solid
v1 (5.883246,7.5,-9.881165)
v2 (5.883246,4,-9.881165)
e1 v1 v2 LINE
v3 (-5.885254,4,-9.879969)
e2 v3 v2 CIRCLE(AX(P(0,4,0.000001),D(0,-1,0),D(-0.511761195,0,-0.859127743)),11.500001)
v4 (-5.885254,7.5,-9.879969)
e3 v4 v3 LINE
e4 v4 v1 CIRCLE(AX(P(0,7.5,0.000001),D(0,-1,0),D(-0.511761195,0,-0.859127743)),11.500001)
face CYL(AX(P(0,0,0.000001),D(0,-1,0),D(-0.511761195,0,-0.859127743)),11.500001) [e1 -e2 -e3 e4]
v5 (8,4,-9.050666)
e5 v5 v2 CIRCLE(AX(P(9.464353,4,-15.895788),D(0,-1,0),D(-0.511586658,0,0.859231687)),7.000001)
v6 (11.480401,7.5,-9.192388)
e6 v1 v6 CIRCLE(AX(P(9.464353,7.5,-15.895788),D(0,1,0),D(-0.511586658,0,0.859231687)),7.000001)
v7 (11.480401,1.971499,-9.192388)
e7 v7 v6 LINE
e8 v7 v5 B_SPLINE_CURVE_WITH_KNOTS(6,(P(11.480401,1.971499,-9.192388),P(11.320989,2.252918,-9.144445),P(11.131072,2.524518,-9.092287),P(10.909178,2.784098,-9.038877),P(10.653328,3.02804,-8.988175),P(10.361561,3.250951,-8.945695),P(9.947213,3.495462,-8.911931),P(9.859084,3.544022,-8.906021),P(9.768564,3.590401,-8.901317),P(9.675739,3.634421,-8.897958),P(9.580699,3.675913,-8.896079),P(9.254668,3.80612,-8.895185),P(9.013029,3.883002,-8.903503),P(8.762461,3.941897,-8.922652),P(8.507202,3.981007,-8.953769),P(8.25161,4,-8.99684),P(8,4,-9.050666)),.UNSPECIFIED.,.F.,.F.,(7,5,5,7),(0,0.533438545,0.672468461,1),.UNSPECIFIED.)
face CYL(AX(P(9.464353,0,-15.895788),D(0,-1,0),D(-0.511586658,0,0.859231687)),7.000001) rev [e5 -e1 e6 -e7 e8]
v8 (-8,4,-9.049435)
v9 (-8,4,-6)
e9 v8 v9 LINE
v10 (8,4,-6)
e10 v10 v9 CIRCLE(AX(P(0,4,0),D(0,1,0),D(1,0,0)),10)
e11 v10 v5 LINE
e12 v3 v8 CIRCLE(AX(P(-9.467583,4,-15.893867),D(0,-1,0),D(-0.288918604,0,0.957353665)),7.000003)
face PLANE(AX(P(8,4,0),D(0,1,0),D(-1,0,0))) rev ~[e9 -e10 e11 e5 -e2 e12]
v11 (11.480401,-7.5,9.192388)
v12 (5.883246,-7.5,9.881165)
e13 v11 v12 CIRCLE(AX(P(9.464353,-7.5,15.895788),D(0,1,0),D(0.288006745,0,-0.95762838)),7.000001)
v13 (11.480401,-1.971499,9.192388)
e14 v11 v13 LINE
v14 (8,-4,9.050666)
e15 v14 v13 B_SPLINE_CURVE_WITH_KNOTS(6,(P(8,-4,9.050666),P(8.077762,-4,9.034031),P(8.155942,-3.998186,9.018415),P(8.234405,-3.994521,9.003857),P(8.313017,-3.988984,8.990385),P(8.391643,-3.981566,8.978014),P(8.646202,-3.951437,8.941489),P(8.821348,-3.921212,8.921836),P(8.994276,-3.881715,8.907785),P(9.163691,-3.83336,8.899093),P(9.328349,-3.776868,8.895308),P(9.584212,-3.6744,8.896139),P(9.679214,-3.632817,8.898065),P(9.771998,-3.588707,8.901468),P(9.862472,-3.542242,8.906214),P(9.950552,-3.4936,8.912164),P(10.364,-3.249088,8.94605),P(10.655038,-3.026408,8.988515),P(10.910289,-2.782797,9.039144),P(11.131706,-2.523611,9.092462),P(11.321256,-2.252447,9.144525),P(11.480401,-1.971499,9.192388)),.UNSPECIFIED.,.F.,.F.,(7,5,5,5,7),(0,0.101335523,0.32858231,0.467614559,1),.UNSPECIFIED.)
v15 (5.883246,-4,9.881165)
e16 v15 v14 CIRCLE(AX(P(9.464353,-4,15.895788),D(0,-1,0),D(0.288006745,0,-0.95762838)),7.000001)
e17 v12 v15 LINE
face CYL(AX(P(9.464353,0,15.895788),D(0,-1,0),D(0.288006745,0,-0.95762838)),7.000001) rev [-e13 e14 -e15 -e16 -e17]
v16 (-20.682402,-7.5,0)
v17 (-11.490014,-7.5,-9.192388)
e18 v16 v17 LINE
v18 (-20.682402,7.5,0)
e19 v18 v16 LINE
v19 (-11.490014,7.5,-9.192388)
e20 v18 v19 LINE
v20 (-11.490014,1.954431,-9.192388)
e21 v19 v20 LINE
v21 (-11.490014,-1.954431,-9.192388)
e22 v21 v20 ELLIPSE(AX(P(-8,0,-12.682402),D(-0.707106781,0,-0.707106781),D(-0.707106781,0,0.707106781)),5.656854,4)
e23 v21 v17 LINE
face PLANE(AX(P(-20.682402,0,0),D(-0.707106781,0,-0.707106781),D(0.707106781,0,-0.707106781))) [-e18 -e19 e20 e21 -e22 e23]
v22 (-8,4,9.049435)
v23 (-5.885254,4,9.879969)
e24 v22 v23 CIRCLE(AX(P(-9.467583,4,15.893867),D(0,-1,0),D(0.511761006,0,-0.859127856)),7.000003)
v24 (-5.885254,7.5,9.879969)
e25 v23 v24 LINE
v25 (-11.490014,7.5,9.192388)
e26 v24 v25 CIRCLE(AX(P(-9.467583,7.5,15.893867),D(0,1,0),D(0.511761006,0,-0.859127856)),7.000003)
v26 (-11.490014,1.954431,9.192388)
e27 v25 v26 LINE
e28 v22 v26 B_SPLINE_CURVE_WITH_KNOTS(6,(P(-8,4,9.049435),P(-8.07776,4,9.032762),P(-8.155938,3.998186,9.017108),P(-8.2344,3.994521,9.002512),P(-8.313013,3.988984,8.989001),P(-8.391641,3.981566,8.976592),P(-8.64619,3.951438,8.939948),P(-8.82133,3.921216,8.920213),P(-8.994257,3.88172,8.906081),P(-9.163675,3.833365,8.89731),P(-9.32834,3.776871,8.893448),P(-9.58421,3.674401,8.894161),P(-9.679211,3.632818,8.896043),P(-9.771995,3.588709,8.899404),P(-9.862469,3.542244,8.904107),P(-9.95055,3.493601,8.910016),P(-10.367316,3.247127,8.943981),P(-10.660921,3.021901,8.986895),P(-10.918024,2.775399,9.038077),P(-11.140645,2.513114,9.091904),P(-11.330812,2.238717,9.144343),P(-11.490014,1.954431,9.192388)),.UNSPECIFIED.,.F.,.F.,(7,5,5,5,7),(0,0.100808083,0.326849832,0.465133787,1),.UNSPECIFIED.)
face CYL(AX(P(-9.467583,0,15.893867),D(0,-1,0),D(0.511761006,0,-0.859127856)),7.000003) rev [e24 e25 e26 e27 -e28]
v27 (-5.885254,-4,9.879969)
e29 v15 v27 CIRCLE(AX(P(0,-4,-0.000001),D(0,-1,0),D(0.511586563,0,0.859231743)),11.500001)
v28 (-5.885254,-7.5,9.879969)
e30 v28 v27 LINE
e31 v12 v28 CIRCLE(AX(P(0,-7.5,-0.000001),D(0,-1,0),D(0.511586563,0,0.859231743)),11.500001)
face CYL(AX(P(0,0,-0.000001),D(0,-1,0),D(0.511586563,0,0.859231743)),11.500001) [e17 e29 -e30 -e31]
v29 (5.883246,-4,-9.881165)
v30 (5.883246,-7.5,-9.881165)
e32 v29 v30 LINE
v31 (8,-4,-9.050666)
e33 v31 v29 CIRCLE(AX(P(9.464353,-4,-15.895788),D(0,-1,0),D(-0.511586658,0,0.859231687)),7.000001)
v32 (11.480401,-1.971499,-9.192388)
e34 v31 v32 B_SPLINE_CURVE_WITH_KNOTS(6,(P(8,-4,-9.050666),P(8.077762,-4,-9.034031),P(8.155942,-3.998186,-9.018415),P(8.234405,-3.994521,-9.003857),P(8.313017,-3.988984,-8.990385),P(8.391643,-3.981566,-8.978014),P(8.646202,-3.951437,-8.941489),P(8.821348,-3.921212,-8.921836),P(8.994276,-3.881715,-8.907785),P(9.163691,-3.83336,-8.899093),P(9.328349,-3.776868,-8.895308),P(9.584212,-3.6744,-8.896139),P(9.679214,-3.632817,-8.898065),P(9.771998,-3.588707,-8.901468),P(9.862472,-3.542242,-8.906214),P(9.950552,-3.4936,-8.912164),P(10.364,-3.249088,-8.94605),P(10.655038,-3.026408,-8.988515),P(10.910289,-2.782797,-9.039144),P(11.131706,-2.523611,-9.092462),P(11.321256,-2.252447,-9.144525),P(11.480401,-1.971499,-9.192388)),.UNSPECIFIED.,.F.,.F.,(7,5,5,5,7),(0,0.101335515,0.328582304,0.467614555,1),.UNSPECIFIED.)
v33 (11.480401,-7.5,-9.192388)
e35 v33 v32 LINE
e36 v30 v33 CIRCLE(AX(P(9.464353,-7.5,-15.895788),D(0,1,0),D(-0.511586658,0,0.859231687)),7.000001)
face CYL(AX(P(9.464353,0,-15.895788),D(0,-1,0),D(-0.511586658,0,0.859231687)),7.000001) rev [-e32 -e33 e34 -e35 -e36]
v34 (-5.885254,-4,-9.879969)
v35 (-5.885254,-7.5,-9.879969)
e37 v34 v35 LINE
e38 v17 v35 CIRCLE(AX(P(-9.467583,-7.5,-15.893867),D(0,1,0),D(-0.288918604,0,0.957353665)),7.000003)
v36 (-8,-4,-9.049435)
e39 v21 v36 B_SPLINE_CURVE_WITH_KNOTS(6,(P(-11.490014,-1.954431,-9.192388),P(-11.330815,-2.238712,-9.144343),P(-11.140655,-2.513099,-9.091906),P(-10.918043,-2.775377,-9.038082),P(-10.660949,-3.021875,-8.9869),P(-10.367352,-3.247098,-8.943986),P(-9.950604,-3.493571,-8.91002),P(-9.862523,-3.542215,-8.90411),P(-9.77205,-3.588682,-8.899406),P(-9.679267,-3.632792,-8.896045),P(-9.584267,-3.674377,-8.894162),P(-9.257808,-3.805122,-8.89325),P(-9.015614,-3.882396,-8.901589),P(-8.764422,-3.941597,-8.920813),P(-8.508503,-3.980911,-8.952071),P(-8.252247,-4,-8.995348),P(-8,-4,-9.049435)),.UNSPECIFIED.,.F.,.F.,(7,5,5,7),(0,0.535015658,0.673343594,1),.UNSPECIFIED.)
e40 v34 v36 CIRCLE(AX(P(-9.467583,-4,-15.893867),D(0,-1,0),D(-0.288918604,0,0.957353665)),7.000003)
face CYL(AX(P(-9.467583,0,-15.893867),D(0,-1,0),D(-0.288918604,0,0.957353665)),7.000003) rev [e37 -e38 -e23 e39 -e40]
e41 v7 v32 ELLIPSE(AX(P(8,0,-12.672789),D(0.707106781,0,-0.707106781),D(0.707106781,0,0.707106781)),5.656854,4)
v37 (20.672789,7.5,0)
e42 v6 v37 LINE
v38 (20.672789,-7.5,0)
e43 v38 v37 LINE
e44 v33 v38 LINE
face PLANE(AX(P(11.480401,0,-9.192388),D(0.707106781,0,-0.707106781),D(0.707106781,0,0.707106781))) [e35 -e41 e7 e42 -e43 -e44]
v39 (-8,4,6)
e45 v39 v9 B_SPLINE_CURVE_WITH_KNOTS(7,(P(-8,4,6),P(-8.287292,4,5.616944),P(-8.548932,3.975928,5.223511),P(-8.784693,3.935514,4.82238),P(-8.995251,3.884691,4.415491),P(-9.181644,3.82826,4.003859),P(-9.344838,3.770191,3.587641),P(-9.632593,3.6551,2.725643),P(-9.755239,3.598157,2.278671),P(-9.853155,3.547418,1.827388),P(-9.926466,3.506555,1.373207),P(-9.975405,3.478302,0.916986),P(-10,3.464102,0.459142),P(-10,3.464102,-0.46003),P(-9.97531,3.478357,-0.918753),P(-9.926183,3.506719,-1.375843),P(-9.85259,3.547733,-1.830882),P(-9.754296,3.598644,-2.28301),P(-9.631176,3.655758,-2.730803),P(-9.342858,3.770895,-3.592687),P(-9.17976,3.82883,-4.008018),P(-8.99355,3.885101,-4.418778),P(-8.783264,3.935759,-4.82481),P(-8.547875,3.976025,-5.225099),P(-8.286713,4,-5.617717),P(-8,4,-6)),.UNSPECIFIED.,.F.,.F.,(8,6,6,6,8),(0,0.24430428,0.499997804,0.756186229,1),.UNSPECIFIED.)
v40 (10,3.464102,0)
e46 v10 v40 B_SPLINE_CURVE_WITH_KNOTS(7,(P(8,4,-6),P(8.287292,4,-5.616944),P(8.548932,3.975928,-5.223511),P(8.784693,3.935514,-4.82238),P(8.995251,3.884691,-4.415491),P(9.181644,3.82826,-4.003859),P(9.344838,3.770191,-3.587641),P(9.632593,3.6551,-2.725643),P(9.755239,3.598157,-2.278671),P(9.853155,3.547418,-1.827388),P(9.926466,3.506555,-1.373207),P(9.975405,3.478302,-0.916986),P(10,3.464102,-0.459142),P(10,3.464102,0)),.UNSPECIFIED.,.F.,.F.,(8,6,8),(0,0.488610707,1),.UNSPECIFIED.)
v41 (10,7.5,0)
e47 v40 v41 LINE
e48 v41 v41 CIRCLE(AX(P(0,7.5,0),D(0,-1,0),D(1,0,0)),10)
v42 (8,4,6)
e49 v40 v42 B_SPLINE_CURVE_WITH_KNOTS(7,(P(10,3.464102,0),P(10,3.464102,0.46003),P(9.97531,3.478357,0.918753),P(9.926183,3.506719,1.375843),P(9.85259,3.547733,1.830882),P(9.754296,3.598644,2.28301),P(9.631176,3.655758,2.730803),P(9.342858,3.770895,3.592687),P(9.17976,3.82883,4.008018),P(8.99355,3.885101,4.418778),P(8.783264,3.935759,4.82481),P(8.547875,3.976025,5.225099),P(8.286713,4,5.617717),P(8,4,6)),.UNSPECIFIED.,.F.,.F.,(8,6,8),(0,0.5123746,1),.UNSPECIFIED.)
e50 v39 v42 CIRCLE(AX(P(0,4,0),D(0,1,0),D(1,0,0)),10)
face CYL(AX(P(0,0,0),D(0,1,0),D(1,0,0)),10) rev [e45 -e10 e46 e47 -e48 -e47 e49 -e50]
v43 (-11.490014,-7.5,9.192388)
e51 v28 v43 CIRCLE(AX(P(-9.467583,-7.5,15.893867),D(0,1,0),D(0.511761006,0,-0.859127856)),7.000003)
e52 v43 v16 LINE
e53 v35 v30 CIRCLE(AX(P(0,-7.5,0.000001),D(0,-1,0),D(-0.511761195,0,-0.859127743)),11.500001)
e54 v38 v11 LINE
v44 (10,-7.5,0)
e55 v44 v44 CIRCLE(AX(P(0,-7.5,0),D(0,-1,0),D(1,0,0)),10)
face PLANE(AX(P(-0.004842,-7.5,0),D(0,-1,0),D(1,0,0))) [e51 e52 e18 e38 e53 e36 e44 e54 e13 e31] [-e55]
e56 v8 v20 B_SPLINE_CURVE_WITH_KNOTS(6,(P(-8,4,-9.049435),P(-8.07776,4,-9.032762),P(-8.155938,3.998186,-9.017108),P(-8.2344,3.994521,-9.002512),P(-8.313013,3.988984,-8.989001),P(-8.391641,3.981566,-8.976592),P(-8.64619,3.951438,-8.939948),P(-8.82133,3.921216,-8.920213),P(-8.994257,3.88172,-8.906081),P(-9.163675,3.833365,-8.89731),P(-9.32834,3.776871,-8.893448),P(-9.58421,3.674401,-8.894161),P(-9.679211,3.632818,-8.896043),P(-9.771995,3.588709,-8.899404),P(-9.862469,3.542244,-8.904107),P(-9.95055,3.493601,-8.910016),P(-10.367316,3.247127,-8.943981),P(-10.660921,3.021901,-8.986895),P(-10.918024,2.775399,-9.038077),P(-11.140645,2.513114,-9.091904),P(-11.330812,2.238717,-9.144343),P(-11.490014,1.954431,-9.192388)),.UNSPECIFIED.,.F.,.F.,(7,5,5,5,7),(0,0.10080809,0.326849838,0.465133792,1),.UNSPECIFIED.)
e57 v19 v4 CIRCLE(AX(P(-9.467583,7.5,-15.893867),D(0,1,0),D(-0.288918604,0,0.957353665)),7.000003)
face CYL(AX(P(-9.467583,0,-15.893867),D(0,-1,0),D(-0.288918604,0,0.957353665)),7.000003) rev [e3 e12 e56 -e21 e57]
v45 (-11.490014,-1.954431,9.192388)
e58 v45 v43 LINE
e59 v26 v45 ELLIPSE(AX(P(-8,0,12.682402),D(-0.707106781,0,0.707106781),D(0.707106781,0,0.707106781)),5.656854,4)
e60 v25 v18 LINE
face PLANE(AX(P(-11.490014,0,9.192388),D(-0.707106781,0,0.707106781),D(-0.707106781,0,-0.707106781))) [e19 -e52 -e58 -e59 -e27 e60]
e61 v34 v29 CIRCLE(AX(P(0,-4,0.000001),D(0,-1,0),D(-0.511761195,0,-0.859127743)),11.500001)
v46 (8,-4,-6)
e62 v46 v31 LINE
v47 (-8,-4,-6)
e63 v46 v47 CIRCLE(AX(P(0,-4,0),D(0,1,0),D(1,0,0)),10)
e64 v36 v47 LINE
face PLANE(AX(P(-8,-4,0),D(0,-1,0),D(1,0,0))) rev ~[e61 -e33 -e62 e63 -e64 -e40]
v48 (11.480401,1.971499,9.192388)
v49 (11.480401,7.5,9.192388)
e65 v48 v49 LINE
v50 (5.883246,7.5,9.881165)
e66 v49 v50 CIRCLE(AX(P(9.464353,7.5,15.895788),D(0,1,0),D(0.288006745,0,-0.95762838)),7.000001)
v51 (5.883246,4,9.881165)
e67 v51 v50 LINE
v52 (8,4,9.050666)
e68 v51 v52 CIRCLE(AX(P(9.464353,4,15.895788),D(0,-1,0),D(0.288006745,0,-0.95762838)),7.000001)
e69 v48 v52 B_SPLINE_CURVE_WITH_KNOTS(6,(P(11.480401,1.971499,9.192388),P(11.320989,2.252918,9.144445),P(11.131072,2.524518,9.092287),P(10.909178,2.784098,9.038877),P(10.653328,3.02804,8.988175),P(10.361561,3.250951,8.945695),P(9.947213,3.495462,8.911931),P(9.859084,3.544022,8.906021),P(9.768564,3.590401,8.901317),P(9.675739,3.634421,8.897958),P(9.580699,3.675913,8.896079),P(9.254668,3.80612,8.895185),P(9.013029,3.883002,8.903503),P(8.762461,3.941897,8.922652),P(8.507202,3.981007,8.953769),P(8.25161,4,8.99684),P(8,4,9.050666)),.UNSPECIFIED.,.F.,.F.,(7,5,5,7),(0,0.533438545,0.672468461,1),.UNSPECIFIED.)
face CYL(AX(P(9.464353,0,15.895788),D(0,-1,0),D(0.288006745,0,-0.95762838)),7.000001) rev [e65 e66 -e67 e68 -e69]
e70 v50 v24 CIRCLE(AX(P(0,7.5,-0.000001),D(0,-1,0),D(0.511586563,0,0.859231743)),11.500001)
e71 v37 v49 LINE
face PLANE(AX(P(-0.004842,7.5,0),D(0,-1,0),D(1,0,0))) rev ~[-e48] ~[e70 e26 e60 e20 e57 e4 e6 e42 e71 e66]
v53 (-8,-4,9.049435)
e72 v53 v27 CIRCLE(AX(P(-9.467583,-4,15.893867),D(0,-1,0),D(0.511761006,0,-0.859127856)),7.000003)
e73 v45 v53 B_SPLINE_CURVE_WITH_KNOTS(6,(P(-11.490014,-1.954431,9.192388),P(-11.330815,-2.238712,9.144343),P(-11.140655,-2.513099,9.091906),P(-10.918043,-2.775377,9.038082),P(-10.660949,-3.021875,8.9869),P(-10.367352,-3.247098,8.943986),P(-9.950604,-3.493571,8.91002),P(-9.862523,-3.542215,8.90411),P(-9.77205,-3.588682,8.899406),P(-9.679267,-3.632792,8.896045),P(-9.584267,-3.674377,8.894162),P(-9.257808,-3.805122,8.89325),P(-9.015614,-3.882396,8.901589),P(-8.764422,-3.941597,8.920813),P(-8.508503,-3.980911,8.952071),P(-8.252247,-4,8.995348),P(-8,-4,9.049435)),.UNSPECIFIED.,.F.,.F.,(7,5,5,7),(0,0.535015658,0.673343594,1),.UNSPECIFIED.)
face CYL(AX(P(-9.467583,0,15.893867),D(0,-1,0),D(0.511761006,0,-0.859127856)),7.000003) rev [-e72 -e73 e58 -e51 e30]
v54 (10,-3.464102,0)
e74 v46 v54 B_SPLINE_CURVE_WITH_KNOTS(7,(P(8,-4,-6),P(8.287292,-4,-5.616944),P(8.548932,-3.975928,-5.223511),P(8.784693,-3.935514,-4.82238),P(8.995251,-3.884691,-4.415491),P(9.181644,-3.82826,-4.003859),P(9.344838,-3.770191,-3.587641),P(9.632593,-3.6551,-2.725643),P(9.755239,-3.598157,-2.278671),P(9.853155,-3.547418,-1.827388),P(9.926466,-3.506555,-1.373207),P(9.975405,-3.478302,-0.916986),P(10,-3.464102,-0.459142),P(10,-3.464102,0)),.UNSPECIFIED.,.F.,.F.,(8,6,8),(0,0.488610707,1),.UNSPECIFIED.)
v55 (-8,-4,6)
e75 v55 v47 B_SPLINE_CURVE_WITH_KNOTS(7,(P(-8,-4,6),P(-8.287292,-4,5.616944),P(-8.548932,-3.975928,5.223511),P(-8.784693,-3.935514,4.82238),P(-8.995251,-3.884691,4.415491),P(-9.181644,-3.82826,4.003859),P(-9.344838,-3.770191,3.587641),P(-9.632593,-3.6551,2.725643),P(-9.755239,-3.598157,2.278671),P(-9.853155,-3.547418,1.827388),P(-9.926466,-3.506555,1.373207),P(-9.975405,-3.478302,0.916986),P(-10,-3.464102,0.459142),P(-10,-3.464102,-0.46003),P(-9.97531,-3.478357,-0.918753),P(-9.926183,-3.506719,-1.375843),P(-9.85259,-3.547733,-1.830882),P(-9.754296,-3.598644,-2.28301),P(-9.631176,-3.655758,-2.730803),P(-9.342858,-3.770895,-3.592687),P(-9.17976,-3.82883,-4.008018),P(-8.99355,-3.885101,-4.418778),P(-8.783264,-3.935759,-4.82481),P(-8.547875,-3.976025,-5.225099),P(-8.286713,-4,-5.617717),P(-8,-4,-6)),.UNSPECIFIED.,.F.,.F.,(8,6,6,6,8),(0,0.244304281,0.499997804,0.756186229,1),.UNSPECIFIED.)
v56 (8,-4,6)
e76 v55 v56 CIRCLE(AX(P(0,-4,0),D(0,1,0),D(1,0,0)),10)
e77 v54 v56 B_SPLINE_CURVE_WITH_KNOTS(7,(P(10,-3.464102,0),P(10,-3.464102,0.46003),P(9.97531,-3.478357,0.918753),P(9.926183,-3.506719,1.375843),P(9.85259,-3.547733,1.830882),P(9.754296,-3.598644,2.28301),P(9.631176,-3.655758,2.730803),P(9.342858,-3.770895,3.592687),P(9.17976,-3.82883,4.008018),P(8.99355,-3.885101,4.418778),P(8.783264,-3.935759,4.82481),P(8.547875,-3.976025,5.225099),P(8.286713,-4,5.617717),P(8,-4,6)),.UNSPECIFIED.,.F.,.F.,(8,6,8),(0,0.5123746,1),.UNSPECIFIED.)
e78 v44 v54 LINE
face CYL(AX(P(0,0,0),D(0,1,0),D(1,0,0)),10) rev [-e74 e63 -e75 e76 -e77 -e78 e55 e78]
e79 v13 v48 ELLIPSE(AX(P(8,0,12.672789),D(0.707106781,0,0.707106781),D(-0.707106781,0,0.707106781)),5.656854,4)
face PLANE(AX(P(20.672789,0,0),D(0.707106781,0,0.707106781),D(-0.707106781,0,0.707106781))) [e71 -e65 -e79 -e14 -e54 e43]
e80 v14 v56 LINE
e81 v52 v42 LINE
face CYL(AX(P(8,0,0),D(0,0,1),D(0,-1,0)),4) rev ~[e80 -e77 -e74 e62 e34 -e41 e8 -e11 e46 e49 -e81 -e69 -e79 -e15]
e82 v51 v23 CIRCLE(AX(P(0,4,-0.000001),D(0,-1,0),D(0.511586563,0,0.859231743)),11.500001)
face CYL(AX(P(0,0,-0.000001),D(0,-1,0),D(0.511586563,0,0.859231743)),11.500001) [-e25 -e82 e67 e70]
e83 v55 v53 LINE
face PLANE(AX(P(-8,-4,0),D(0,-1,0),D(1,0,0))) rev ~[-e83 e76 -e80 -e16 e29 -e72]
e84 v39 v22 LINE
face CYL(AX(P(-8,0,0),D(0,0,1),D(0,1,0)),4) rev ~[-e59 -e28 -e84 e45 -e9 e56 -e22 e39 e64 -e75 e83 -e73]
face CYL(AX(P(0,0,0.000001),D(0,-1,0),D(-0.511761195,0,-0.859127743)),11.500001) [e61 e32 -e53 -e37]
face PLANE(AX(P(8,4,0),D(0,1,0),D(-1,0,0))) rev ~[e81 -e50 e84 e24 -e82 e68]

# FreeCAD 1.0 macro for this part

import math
import FreeCAD as App
import Part
import Sketcher

doc = App.newDocument("Part")
body = doc.addObject("PartDesign::Body", "Body")

# Sketch on XZ plane
sketch1 = body.newObject("Sketcher::SketchObject", "Sketch")
sketch1.AttachmentSupport = (doc.getObject("XZ_Plane"), [""])
sketch1.MapMode = "FlatFace"
sketch1.addGeometry([
    Part.ArcOfCircle(Part.Circle(App.Vector(-9, 16, 0), App.Vector(0, 0, 1), 7), math.radians(-107), math.radians(-59)),  # 0
    Part.LineSegment(App.Vector(-11, 9, 0), App.Vector(-21, 0, 0)),  # 1
    Part.LineSegment(App.Vector(-21, 0, 0), App.Vector(-11, -9, 0)),  # 2
    Part.ArcOfCircle(Part.Circle(App.Vector(-9, -16, 0), App.Vector(0, 0, 1), 7), math.radians(59), math.radians(107)),  # 3
    Part.ArcOfCircle(Part.Circle(App.Vector(0, 0, 0), App.Vector(0, 0, 1), 12), math.radians(-121), math.radians(-59)),  # 4
    Part.ArcOfCircle(Part.Circle(App.Vector(9, -16, 0), App.Vector(0, 0, 1), 7), math.radians(73), math.radians(121)),  # 5
    Part.LineSegment(App.Vector(11, -9, 0), App.Vector(21, 0, 0)),  # 6
    Part.LineSegment(App.Vector(21, 0, 0), App.Vector(11, 9, 0)),  # 7
    Part.ArcOfCircle(Part.Circle(App.Vector(9, 16, 0), App.Vector(0, 0, 1), 7), math.radians(-121), math.radians(-73)),  # 8
    Part.ArcOfCircle(Part.Circle(App.Vector(0, 0, 0), App.Vector(0, 0, 1), 12), math.radians(59), math.radians(121)),  # 9
    Part.Circle(App.Vector(0, 0, 0), App.Vector(0, 0, 1), 10),  # 10
], False)
sketch1.addConstraint([
    Sketcher.Constraint("Coincident", 0, 1, 1, 1),
    Sketcher.Constraint("Coincident", 1, 2, 2, 1),
    Sketcher.Constraint("Coincident", 2, 2, 3, 2),
    Sketcher.Constraint("Tangent", 3, 1, 4, 1),
    Sketcher.Constraint("Tangent", 4, 2, 5, 2),
    Sketcher.Constraint("Coincident", 5, 1, 6, 1),
    Sketcher.Constraint("Coincident", 6, 2, 7, 1),
    Sketcher.Constraint("Coincident", 7, 2, 8, 2),
    Sketcher.Constraint("Tangent", 8, 1, 9, 1),
    Sketcher.Constraint("Tangent", 9, 2, 0, 2),
    Sketcher.Constraint("Coincident", 4, 3, -1, 1),
    Sketcher.Constraint("Coincident", 9, 3, -1, 1),
    Sketcher.Constraint("Coincident", 10, 3, -1, 1),
    Sketcher.Constraint("Equal", 0, 3),
    Sketcher.Constraint("Equal", 3, 5),
    Sketcher.Constraint("Equal", 5, 8),
    Sketcher.Constraint("Equal", 4, 9),
    Sketcher.Constraint("Symmetric", 0, 1, 2, 2, -1),
    Sketcher.Constraint("Symmetric", 5, 1, 7, 2, -1),
    Sketcher.Constraint("PointOnObject", 1, 2, -1),
    Sketcher.Constraint("PointOnObject", 6, 2, -1),
    Sketcher.Constraint("Perpendicular", 1, 2),
    Sketcher.Constraint("Perpendicular", 2, 6),
    Sketcher.Constraint("Horizontal", 2, 2, 5, 1),
    Sketcher.Constraint("Diameter", 10, 20.0),
    Sketcher.Constraint("Radius", 5, 7.000001),
    Sketcher.Constraint("Radius", 4, 11.500001),
    Sketcher.Constraint("Distance", 1, 13.0),
    Sketcher.Constraint("DistanceX", 1, 2, -1, 1, 20.682402),
    Sketcher.Constraint("DistanceX", -1, 1, 5, 1, 11.480401),
])
pad1 = body.newObject("PartDesign::Pad", "Pad")
pad1.Profile = sketch1
pad1.Length = 15
pad1.Midplane = True

# Sketch on XY plane
sketch2 = body.newObject("Sketcher::SketchObject", "Sketch001")
sketch2.AttachmentSupport = (doc.getObject("XY_Plane"), [""])
sketch2.MapMode = "FlatFace"
sketch2.addGeometry([
    Part.LineSegment(App.Vector(8, 4, 0), App.Vector(-8, 4, 0)),
    Part.ArcOfCircle(Part.Circle(App.Vector(-8, 0, 0), App.Vector(0, 0, 1), 4), math.radians(90), math.radians(270)),
    Part.LineSegment(App.Vector(-8, -4, 0), App.Vector(8, -4, 0)),
    Part.ArcOfCircle(Part.Circle(App.Vector(8, 0, 0), App.Vector(0, 0, 1), 4), math.radians(-90), math.radians(90)),
], False)
sketch2.addConstraint([
    Sketcher.Constraint("Tangent", 0, 2, 1, 1),
    Sketcher.Constraint("Tangent", 1, 2, 2, 1),
    Sketcher.Constraint("Tangent", 2, 2, 3, 1),
    Sketcher.Constraint("Tangent", 3, 2, 0, 1),
    Sketcher.Constraint("Horizontal", 0),
    Sketcher.Constraint("Horizontal", 2),
    Sketcher.Constraint("Symmetric", 1, 3, 3, 3, -1, 1),
    Sketcher.Constraint("Radius", 1, 4.0),
    Sketcher.Constraint("DistanceX", 0, 2, 0, 1, 16.0),
])
pocket1 = body.newObject("PartDesign::Pocket", "Pocket")
pocket1.Profile = sketch2
pocket1.Length = 50
pocket1.Midplane = True

doc.recompute()
